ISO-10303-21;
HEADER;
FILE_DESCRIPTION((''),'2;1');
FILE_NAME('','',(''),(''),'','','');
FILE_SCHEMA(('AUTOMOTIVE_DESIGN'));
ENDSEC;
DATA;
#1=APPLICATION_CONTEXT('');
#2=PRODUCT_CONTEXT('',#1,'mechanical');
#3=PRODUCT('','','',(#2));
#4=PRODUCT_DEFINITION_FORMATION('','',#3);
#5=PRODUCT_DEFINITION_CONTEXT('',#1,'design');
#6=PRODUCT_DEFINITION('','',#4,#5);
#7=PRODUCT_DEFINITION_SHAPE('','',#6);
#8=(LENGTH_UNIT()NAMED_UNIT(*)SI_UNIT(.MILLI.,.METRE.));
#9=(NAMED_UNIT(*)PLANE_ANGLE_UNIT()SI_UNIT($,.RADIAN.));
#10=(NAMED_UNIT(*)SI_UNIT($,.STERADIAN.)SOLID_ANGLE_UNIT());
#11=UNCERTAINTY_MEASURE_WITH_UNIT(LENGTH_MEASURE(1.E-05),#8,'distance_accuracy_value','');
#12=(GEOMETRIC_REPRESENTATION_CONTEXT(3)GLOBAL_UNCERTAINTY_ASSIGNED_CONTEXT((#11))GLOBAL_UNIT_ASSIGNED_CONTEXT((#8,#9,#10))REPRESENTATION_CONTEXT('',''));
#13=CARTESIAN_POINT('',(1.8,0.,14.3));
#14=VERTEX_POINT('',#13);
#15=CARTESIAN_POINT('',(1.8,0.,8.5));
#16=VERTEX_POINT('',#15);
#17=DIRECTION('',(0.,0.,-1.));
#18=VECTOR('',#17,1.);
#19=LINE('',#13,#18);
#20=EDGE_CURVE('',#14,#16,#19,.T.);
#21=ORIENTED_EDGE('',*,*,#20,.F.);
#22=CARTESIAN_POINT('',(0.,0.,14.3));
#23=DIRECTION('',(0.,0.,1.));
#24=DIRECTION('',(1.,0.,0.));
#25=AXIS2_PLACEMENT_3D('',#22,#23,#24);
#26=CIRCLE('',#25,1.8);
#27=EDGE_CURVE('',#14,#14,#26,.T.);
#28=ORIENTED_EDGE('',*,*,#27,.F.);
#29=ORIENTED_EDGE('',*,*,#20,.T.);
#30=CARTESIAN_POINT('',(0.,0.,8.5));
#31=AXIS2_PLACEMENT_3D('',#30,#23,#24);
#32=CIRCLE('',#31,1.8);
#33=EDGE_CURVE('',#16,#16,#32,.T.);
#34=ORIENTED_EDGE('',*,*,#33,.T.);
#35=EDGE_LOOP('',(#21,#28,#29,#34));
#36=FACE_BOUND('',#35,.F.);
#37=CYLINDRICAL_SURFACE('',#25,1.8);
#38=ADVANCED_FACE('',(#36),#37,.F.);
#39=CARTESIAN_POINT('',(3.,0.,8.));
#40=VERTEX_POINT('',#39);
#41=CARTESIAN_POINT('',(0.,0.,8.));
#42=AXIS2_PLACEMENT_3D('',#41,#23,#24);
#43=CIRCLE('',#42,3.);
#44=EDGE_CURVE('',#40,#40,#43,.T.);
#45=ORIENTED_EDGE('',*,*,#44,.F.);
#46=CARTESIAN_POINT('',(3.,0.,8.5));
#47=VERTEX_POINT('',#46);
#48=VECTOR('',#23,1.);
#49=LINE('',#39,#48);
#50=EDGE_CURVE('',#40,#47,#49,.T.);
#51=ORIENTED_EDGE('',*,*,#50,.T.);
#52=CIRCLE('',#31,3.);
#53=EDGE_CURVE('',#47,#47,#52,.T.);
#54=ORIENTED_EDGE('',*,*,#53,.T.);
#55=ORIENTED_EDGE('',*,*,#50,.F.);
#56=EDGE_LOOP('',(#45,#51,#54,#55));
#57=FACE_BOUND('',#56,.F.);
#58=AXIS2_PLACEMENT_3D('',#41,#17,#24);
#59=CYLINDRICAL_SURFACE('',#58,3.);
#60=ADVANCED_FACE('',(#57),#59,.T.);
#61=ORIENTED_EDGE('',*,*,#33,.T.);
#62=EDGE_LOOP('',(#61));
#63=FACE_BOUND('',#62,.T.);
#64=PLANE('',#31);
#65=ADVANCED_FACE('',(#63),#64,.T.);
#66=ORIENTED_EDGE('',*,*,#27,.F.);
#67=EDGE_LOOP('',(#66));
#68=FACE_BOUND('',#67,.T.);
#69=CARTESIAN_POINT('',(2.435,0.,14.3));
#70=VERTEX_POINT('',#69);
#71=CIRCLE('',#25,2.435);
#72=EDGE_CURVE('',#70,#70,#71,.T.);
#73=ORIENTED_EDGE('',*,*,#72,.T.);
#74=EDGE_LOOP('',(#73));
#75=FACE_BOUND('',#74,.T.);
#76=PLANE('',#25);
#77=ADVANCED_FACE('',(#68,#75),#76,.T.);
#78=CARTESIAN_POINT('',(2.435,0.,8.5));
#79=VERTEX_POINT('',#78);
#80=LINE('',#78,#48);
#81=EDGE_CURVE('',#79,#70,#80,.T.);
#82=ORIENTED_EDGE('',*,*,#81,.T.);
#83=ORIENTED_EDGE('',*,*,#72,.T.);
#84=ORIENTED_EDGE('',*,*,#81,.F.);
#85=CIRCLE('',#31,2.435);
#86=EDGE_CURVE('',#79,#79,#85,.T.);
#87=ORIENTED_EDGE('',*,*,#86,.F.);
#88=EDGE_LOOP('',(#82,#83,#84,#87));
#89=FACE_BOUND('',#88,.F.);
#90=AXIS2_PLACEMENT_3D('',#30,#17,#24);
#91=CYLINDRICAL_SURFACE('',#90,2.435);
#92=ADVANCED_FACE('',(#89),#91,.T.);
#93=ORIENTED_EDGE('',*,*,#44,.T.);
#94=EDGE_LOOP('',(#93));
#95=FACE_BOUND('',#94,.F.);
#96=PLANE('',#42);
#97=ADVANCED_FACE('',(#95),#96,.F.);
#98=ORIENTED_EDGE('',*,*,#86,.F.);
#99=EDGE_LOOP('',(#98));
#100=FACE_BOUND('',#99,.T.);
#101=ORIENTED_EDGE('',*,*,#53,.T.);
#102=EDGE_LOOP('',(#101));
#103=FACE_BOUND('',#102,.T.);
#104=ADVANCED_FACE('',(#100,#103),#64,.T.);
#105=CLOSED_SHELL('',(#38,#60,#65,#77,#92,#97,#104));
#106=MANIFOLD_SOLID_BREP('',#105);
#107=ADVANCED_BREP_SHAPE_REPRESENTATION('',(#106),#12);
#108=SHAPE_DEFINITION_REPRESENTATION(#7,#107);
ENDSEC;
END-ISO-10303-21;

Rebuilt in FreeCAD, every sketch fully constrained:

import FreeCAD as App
import Part
import Sketcher
from FreeCAD import Vector

doc = App.newDocument("Part")
params = doc.addObject("Spreadsheet::Sheet", "Params")
for row, (alias, value) in enumerate([
    ("sketch1_diameter", "6 mm"),
    ("pad1_length", "0.5 mm"),
    ("sketch2_diameter", "4.87 mm"),
    ("pad2_length", "5.8 mm"),
    ("sketch3_diameter", "3.6 mm"),
    ("pocket1_length", "5.8 mm"),
], start=1):
    params.set(f"A{row}", alias)
    params.set(f"B{row}", "=" + value)
    params.setAlias(f"B{row}", alias)

body = doc.addObject("PartDesign::Body", "Body")

sketch1 = body.newObject("Sketcher::SketchObject", "Sketch")
sketch1.AttachmentSupport = (doc.getObject("XY_Plane"), [""])
sketch1.MapMode = "FlatFace"
sketch1.AttachmentOffset = App.Placement(Vector(0, 0, 8), App.Rotation())
sketch1.addGeometry(Part.Circle(Vector(0, 0, 0), Vector(0, 0, 1), 3), False)
sketch1.addConstraint([
    Sketcher.Constraint("Coincident", 0, 3, -1, 1),
    Sketcher.Constraint("Diameter", 0, 6.0),
])
sketch1.setExpression("Constraints[1]", "Params.sketch1_diameter")
pad1 = body.newObject("PartDesign::Pad", "Pad")
pad1.Profile = sketch1
pad1.setExpression("Length", "Params.pad1_length")

sketch2 = body.newObject("Sketcher::SketchObject", "Sketch001")
sketch2.AttachmentSupport = (doc.getObject("XY_Plane"), [""])
sketch2.MapMode = "FlatFace"
sketch2.AttachmentOffset = App.Placement(Vector(0, 0, 8.5), App.Rotation())
sketch2.addGeometry(Part.Circle(Vector(0, 0, 0), Vector(0, 0, 1), 2.4), False)
sketch2.addConstraint([
    Sketcher.Constraint("Coincident", 0, 3, -1, 1),
    Sketcher.Constraint("Diameter", 0, 4.87),
])
sketch2.setExpression("Constraints[1]", "Params.sketch2_diameter")
pad2 = body.newObject("PartDesign::Pad", "Pad001")
pad2.Profile = sketch2
pad2.setExpression("Length", "Params.pad2_length")

sketch3 = body.newObject("Sketcher::SketchObject", "Sketch002")
sketch3.AttachmentSupport = (doc.getObject("XY_Plane"), [""])
sketch3.MapMode = "FlatFace"
sketch3.AttachmentOffset = App.Placement(Vector(0, 0, 14.3), App.Rotation())
sketch3.addGeometry(Part.Circle(Vector(0, 0, 0), Vector(0, 0, 1), 1.8), False)
sketch3.addConstraint([
    Sketcher.Constraint("Coincident", 0, 3, -1, 1),
    Sketcher.Constraint("Diameter", 0, 3.6),
])
sketch3.setExpression("Constraints[1]", "Params.sketch3_diameter")
pocket1 = body.newObject("PartDesign::Pocket", "Pocket")
pocket1.Profile = sketch3
pocket1.setExpression("Length", "Params.pocket1_length")

doc.recompute()
